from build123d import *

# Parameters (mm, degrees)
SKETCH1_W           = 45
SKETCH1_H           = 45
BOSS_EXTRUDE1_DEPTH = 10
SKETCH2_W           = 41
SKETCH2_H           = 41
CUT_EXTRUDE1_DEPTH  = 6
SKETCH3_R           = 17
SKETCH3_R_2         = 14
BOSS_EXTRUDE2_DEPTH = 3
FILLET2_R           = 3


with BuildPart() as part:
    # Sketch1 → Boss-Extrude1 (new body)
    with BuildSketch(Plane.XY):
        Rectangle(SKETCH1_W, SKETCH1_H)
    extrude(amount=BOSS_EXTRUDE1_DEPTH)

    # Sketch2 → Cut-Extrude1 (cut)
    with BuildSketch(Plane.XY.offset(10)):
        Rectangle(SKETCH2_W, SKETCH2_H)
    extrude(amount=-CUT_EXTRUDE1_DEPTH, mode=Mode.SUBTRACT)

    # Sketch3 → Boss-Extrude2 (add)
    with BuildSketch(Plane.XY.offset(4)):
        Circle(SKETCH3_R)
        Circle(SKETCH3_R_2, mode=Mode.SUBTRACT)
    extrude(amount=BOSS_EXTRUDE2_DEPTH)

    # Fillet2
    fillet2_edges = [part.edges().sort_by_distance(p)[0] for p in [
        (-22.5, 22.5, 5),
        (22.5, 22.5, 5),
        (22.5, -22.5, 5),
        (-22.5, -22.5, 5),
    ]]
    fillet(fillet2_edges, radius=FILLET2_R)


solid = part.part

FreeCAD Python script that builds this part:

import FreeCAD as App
import Part
import Sketcher
from FreeCAD import Vector


def edges_at(feature, points):
    """Names of the edges that pass closest to the given points."""
    edges = feature.Shape.Edges
    near = lambda p: min(range(len(edges)), key=lambda i: edges[i].distToShape(Part.Vertex(*p))[0])
    return sorted({f"Edge{near(p) + 1}" for p in points})

doc = App.newDocument("Part")
body = doc.addObject("PartDesign::Body", "Body")

# Sketch on XY plane
sketch1 = doc.addObject("Sketcher::SketchObject", "Sketch")
body.addObject(sketch1)
sketch1.AttachmentSupport = (doc.XY_Plane, [""])
sketch1.MapMode = "FlatFace"
sketch1.addGeometry([
    Part.LineSegment(Vector(-22, 22, 0), Vector(-22, -22, 0)),
    Part.LineSegment(Vector(-22, -22, 0), Vector(22, -22, 0)),
    Part.LineSegment(Vector(22, -22, 0), Vector(22, 22, 0)),
    Part.LineSegment(Vector(22, 22, 0), Vector(-22, 22, 0)),
], False)
sketch1.addConstraint([
    Sketcher.Constraint("Coincident", 0, 2, 1, 1),
    Sketcher.Constraint("Coincident", 1, 2, 2, 1),
    Sketcher.Constraint("Coincident", 2, 2, 3, 1),
    Sketcher.Constraint("Coincident", 3, 2, 0, 1),
    Sketcher.Constraint("Vertical", 0),
    Sketcher.Constraint("Horizontal", 1),
    Sketcher.Constraint("Vertical", 2),
    Sketcher.Constraint("Horizontal", 3),
    Sketcher.Constraint("Symmetric", 0, 2, 2, 2, -1, 1),
    Sketcher.Constraint("Equal", 3, 0),
    Sketcher.Constraint("DistanceX", 1, 1, 1, 2, 45.0),
])
pad1 = doc.addObject("PartDesign::Pad", "Pad")
body.addObject(pad1)
pad1.Profile = sketch1
pad1.Length = 10

# Sketch on XY plane
sketch2 = doc.addObject("Sketcher::SketchObject", "Sketch001")
body.addObject(sketch2)
sketch2.AttachmentSupport = (doc.XY_Plane, [""])
sketch2.MapMode = "FlatFace"
sketch2.AttachmentOffset = App.Placement(Vector(0, 0, 10), App.Rotation())
sketch2.addGeometry([
    Part.LineSegment(Vector(-20, 20, 0), Vector(-20, -20, 0)),
    Part.LineSegment(Vector(-20, -20, 0), Vector(20, -20, 0)),
    Part.LineSegment(Vector(20, -20, 0), Vector(20, 20, 0)),
    Part.LineSegment(Vector(20, 20, 0), Vector(-20, 20, 0)),
], False)
sketch2.addConstraint([
    Sketcher.Constraint("Coincident", 0, 2, 1, 1),
    Sketcher.Constraint("Coincident", 1, 2, 2, 1),
    Sketcher.Constraint("Coincident", 2, 2, 3, 1),
    Sketcher.Constraint("Coincident", 3, 2, 0, 1),
    Sketcher.Constraint("Vertical", 0),
    Sketcher.Constraint("Horizontal", 1),
    Sketcher.Constraint("Vertical", 2),
    Sketcher.Constraint("Horizontal", 3),
    Sketcher.Constraint("Symmetric", 0, 2, 2, 2, -1, 1),
    Sketcher.Constraint("Equal", 3, 0),
    Sketcher.Constraint("DistanceX", 1, 1, 1, 2, 41.0),
])
pocket1 = doc.addObject("PartDesign::Pocket", "Pocket")
body.addObject(pocket1)
pocket1.Profile = sketch2
pocket1.Length = 6

# Sketch on XY plane
sketch3 = doc.addObject("Sketcher::SketchObject", "Sketch002")
body.addObject(sketch3)
sketch3.AttachmentSupport = (doc.XY_Plane, [""])
sketch3.MapMode = "FlatFace"
sketch3.AttachmentOffset = App.Placement(Vector(0, 0, 4), App.Rotation())
sketch3.addGeometry([
    Part.Circle(Vector(0, 0, 0), Vector(0, 0, 1), 17),
    Part.Circle(Vector(0, 0, 0), Vector(0, 0, 1), 14),
], False)
sketch3.addConstraint([
    Sketcher.Constraint("Coincident", 0, 3, -1, 1),
    Sketcher.Constraint("Coincident", 1, 3, -1, 1),
    Sketcher.Constraint("Diameter", 0, 34.0),
    Sketcher.Constraint("Diameter", 1, 28.0),
])
pad2 = doc.addObject("PartDesign::Pad", "Pad001")
body.addObject(pad2)
pad2.Profile = sketch3
pad2.Length = 3
doc.recompute()

fillet = doc.addObject("PartDesign::Fillet", "Fillet")
body.addObject(fillet)
fillet.Base = (pad2, edges_at(pad2, [
    (-22.5, 22.5, 5),
    (22.5, 22.5, 5),
    (22.5, -22.5, 5),
    (-22.5, -22.5, 5),
]))
fillet.Radius = 3

doc.recompute()
